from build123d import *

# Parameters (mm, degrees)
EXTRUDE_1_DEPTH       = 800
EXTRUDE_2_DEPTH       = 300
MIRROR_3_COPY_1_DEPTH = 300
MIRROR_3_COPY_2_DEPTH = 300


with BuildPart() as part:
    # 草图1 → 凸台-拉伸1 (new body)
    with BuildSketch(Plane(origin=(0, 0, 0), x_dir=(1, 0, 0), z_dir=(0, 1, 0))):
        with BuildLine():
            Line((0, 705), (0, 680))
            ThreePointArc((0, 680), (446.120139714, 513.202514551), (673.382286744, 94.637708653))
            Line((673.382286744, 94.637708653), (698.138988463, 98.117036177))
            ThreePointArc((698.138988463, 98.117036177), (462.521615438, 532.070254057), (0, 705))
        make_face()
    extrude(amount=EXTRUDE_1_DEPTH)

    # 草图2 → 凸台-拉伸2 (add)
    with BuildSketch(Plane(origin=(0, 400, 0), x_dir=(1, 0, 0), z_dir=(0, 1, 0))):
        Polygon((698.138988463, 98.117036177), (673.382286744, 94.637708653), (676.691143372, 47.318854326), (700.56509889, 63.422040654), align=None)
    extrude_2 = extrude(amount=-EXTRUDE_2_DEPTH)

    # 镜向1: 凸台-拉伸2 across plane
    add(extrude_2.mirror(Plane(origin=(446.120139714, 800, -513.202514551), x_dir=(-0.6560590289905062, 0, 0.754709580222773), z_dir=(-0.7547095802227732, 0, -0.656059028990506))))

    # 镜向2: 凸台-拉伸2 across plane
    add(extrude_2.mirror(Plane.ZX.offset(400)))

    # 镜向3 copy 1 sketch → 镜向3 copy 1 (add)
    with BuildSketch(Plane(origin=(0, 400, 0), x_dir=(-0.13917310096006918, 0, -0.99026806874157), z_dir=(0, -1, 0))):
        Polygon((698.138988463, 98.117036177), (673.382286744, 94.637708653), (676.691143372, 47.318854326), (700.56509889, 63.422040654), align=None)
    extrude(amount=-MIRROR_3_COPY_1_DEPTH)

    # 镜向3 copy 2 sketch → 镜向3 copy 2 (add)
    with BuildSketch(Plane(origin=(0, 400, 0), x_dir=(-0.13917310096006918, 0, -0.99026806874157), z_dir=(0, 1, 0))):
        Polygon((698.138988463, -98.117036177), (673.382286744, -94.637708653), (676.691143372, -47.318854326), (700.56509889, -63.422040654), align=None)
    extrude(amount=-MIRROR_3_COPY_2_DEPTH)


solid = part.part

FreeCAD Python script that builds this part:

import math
import FreeCAD as App
import Part
import Sketcher

V = App.Vector
Q = App.Units.Quantity


def add_polygon(sketch, points):
    """Adds a closed chain of lines whose ends are joined by coincident constraints."""
    first, n = sketch.GeometryCount, len(points)
    for a, b in zip(points, points[1:] + points[:1]):
        sketch.addGeometry(Part.LineSegment(App.Vector(*a, 0), App.Vector(*b, 0)), False)
    for i in range(n):
        sketch.addConstraint(Sketcher.Constraint("Coincident", first + i, 2, first + (i + 1) % n, 1))

doc = App.newDocument("Part")
body = doc.addObject("PartDesign::Body", "Body")

# Sketch on XZ plane
sketch1 = doc.addObject("Sketcher::SketchObject", "Sketch")
body.addObject(sketch1)
sketch1.AttachmentSupport = (doc.XZ_Plane, [""])
sketch1.MapMode = "FlatFace"
sketch1.addGeometry([
    Part.LineSegment(V(0, -705, 0), V(0, -680, 0)),
    Part.ArcOfCircle(Part.Circle(V(0, 0, 0), V(0, 0, 1), 680), math.radians(-90), math.radians(-8)),
    Part.LineSegment(V(673, -95, 0), V(698, -98, 0)),
    Part.ArcOfCircle(Part.Circle(V(0, 0, 0), V(0, 0, 1), 705), math.radians(-90), math.radians(-8)),
], False)
sketch1.addConstraint([
    Sketcher.Constraint("Coincident", 0, 2, 1, 1),
    Sketcher.Constraint("Coincident", 1, 2, 2, 1),
    Sketcher.Constraint("Coincident", 2, 2, 3, 2),
    Sketcher.Constraint("Coincident", 3, 1, 0, 1),
    Sketcher.Constraint("Vertical", 0),
    Sketcher.Constraint("Coincident", 1, 3, -1, 1),
    Sketcher.Constraint("Coincident", 3, 3, -1, 1),
    Sketcher.Constraint("PointOnObject", 0, 2, -2),
    Sketcher.Constraint("Radius", 1, 680.0),
    Sketcher.Constraint("Radius", 3, 705.0),
    Sketcher.Constraint("Angle", 2, Q("-8 deg")),
    Sketcher.Constraint("DistanceX", -1, 1, 2, 2, 698.138988),
])
pad1 = doc.addObject("PartDesign::Pad", "Pad")
body.addObject(pad1)
pad1.Profile = sketch1
pad1.Length = 800
pad1.Reversed = True

# Sketch on XZ plane
sketch2 = doc.addObject("Sketcher::SketchObject", "Sketch001")
body.addObject(sketch2)
sketch2.AttachmentSupport = (doc.XZ_Plane, [""])
sketch2.MapMode = "FlatFace"
sketch2.AttachmentOffset = App.Placement(V(0, 0, -400), App.Rotation())
add_polygon(sketch2, [(698, -98), (673, -95), (677, -47), (701, -63)])  # lines 0-3
sketch2.addConstraint([
    Sketcher.Constraint("Parallel", 1, 3),
    Sketcher.Constraint("Angle", 0, Q("172 deg")),
    Sketcher.Constraint("Angle", 1, Q("86 deg")),
    Sketcher.Constraint("Angle", 2, Q("-34 deg")),
    Sketcher.Constraint("Distance", 0, 25.0),
    Sketcher.Constraint("DistanceX", -1, 1, 2, 2, 700.565099),
    Sketcher.Constraint("DistanceY", 0, 2, -1, 1, 94.637709),
    Sketcher.Constraint("DistanceY", 2, 2, -1, 1, 63.422041),
])
pad2 = doc.addObject("PartDesign::Pad", "Pad001")
body.addObject(pad2)
pad2.Profile = sketch2
pad2.Length = 300
doc.recompute()

datumplane = doc.addObject("PartDesign::Plane", "DatumPlane")
body.addObject(datumplane)
datumplane.Placement = App.Placement(V(0, 0, 0), App.Rotation(V(0.656059029, 0, -0.75470958), V(0, -1, 0), V(-0.75470958, 0, -0.656059029), "ZXY"))
mirrored = doc.addObject("PartDesign::Mirrored", "Mirrored")
body.addObject(mirrored)
mirrored.Originals = [pad2]
mirrored.MirrorPlane = (datumplane, [""])
body.Tip = mirrored
doc.recompute()

datumplane2 = doc.addObject("PartDesign::Plane", "DatumPlane001")
body.addObject(datumplane2)
datumplane2.AttachmentSupport = (doc.XZ_Plane, [""])
datumplane2.MapMode = "FlatFace"
datumplane2.AttachmentOffset = App.Placement(V(0, 0, -400), App.Rotation())
mirrored2 = doc.addObject("PartDesign::Mirrored", "Mirrored001")
body.addObject(mirrored2)
mirrored2.Originals = [pad2]
mirrored2.MirrorPlane = (datumplane2, [""])
body.Tip = mirrored2

# Sketch on XZ plane
sketch3 = doc.addObject("Sketcher::SketchObject", "Sketch002")
body.addObject(sketch3)
sketch3.AttachmentSupport = (doc.XZ_Plane, [""])
sketch3.MapMode = "FlatFace"
sketch3.AttachmentOffset = App.Placement(V(0, 0, -400), App.Rotation())
add_polygon(sketch3, [(0, -705), (0, -680), (-47, -677), (-35, -703)])  # lines 0-3
sketch3.addConstraint([
    Sketcher.Constraint("Vertical", 0),
    Sketcher.Constraint("PointOnObject", 0, 2, -2),
    Sketcher.Constraint("Parallel", 1, 3),
    Sketcher.Constraint("DistanceY", 0, 1, 0, 2, 25.0),
    Sketcher.Constraint("Angle", 1, Q("176 deg")),
    Sketcher.Constraint("Angle", 2, Q("-64 deg")),
    Sketcher.Constraint("DistanceY", 0, 2, -1, 1, 680.0),
    Sketcher.Constraint("DistanceY", 2, 2, -1, 1, 702.57389),
])
pad3 = doc.addObject("PartDesign::Pad", "Pad002")
body.addObject(pad3)
pad3.Profile = sketch3
pad3.Length = 300
pad3.Reversed = True

# Sketch on XZ plane
sketch4 = doc.addObject("Sketcher::SketchObject", "Sketch003")
body.addObject(sketch4)
sketch4.AttachmentSupport = (doc.XZ_Plane, [""])
sketch4.MapMode = "FlatFace"
sketch4.AttachmentOffset = App.Placement(V(0, 0, -400), App.Rotation())
add_polygon(sketch4, [(0, -680), (0, -705), (-35, -703), (-47, -677)])  # lines 0-3
sketch4.addConstraint([
    Sketcher.Constraint("Vertical", 0),
    Sketcher.Constraint("PointOnObject", 0, 2, -2),
    Sketcher.Constraint("Parallel", 1, 3),
    Sketcher.Constraint("DistanceY", 0, 2, 0, 1, 25.0),
    Sketcher.Constraint("Angle", 1, Q("176 deg")),
    Sketcher.Constraint("Angle", 2, Q("116 deg")),
    Sketcher.Constraint("DistanceY", 0, 2, -1, 1, 705.0),
    Sketcher.Constraint("DistanceY", 1, 2, -1, 1, 702.57389),
])
pad4 = doc.addObject("PartDesign::Pad", "Pad003")
body.addObject(pad4)
pad4.Profile = sketch4
pad4.Length = 300

doc.recompute()
